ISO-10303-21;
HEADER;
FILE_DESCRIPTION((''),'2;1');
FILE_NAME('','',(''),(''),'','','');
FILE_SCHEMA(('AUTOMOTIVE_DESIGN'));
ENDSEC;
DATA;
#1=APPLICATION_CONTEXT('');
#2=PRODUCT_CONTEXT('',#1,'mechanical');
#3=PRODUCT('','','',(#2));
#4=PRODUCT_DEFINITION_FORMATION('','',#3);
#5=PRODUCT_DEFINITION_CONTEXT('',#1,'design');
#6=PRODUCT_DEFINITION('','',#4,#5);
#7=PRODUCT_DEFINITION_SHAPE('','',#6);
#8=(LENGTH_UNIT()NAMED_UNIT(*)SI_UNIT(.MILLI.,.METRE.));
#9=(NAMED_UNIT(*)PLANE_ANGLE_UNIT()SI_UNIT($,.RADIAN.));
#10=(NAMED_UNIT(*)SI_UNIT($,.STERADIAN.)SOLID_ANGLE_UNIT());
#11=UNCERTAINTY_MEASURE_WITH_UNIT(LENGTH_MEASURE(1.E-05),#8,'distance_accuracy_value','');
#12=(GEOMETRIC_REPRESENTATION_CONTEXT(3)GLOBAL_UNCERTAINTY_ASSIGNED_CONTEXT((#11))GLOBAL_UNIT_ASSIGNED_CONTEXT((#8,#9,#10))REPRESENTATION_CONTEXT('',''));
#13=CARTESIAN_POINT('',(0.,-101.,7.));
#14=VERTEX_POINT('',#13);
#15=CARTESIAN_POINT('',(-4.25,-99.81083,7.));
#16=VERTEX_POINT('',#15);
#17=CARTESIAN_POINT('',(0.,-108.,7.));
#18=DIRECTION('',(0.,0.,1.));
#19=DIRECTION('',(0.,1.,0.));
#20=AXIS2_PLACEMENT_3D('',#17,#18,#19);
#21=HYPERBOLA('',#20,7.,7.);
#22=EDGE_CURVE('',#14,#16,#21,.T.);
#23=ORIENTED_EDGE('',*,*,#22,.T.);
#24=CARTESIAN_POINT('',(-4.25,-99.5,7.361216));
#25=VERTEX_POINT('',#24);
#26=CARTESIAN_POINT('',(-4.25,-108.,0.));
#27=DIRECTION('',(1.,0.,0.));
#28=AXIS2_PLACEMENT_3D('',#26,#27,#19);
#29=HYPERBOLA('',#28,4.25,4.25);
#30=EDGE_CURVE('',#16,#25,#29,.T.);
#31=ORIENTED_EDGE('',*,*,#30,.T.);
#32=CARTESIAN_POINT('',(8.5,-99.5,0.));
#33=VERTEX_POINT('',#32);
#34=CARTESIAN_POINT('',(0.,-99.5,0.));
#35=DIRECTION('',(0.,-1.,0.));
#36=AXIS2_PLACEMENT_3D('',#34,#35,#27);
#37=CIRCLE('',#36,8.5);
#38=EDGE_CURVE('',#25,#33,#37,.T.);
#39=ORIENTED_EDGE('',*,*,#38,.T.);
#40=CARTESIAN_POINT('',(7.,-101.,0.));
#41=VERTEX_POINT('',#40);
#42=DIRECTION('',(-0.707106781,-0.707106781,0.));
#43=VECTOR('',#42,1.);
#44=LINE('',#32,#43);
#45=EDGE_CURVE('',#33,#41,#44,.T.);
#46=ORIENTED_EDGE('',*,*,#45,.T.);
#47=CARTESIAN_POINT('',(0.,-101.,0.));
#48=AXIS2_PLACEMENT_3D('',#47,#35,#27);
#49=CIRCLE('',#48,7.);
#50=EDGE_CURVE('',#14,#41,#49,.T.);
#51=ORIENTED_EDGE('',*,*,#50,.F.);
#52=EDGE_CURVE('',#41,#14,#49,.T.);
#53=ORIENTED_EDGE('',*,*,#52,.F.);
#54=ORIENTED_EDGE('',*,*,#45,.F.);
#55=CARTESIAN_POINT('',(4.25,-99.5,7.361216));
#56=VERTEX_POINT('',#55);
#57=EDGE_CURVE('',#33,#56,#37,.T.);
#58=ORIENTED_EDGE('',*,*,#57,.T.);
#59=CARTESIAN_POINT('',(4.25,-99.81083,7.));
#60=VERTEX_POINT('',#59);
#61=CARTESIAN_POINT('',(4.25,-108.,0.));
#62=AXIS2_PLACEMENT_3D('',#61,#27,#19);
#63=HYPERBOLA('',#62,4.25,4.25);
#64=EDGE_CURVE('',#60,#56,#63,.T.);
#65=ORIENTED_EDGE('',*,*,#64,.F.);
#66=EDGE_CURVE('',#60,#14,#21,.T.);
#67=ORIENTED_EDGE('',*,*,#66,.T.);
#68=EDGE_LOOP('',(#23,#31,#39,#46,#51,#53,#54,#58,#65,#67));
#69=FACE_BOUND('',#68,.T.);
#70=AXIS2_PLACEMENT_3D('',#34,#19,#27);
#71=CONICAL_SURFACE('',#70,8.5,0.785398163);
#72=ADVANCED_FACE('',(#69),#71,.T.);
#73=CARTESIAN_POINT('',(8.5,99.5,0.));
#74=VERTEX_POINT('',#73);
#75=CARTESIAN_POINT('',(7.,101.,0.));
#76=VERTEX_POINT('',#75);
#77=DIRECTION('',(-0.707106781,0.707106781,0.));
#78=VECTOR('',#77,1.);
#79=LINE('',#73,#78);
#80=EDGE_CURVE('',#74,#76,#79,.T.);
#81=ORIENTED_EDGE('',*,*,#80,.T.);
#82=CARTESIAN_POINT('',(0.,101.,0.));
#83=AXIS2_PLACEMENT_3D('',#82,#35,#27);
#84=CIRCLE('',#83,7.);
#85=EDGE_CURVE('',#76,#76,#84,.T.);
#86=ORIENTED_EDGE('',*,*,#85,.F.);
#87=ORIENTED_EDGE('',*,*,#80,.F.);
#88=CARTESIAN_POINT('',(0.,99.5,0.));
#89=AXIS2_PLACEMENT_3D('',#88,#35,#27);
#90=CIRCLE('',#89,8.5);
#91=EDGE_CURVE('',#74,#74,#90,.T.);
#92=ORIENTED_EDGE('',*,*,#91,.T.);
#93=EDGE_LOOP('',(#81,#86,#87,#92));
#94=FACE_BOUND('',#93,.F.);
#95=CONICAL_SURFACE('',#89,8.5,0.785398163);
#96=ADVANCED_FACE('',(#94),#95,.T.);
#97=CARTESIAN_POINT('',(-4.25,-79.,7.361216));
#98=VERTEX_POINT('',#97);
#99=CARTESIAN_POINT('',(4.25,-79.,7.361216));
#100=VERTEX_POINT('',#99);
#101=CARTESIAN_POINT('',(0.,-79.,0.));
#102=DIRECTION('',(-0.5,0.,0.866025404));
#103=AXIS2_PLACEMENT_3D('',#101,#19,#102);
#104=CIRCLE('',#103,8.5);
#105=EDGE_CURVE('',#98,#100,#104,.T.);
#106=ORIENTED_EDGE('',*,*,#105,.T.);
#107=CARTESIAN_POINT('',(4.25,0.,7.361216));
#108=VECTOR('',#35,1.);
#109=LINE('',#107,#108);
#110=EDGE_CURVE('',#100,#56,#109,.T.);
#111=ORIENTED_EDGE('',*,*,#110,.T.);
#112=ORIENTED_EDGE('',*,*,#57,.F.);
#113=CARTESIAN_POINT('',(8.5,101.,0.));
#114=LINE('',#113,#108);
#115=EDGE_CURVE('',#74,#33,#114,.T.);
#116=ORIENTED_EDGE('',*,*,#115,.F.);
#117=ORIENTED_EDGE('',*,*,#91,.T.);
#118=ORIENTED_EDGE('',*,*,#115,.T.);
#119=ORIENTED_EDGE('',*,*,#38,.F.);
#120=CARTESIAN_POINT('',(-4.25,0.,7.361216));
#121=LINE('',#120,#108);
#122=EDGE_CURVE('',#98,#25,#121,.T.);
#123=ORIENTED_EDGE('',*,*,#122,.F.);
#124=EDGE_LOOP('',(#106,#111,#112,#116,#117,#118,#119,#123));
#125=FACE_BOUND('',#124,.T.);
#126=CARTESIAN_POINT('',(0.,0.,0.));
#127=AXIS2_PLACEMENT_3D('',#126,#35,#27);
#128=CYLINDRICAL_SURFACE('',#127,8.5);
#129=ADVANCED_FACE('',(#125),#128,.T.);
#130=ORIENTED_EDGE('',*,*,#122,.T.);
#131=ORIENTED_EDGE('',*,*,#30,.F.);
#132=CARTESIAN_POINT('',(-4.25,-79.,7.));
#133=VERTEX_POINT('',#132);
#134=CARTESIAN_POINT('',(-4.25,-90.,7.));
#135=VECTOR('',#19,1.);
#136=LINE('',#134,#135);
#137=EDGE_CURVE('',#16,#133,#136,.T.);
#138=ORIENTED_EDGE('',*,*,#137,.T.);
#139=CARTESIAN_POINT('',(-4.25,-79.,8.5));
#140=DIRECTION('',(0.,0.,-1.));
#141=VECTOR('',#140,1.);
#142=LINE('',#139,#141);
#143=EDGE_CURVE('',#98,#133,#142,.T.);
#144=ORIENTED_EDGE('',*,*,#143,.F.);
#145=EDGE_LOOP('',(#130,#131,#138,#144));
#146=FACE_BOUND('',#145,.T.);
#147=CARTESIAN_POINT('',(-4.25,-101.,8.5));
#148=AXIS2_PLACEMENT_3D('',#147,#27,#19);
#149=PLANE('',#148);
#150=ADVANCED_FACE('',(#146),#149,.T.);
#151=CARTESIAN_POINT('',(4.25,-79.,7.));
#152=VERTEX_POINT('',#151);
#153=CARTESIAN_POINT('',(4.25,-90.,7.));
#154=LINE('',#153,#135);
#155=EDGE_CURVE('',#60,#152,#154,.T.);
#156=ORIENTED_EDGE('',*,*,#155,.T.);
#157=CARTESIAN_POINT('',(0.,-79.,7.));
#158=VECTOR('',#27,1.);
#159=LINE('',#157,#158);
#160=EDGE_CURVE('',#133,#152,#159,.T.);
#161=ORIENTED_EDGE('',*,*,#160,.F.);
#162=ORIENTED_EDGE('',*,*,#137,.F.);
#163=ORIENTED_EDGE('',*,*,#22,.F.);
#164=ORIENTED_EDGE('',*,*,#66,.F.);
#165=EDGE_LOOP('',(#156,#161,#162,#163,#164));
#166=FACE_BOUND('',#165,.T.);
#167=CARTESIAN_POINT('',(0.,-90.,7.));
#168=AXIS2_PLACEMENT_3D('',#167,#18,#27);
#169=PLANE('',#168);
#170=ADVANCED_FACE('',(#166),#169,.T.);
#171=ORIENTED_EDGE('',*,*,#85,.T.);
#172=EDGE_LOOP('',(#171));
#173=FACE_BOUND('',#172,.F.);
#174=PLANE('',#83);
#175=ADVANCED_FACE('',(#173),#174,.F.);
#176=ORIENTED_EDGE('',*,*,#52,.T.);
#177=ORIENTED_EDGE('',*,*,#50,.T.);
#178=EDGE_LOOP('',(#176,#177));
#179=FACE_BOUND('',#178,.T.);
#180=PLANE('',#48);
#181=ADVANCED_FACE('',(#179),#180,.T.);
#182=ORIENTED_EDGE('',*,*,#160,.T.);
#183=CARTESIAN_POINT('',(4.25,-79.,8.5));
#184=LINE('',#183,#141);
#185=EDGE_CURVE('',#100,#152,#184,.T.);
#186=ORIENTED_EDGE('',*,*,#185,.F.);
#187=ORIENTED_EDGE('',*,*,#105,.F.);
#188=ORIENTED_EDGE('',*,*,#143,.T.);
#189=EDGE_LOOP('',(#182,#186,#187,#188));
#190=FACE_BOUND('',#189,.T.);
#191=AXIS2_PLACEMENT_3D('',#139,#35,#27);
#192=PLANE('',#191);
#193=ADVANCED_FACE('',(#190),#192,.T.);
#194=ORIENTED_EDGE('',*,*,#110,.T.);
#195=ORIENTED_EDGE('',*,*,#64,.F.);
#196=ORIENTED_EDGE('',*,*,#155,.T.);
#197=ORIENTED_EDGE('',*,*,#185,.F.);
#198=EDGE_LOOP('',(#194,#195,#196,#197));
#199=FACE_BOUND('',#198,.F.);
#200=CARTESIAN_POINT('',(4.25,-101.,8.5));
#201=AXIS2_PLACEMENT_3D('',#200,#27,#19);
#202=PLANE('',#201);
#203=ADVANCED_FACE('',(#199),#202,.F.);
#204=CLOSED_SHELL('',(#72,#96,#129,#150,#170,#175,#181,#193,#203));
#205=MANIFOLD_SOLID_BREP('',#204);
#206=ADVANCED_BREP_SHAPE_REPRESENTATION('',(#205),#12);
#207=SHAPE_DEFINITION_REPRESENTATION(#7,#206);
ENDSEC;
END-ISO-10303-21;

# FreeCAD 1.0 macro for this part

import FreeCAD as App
import Part
import Sketcher
Q = App.Units.Quantity


def edges_at(feature, points):
    """Names of the edges that pass closest to the given points."""
    edges = feature.Shape.Edges
    near = lambda p: min(range(len(edges)), key=lambda i: edges[i].distToShape(Part.Vertex(*p))[0])
    return sorted({f"Edge{near(p) + 1}" for p in points})


def add_polygon(sketch, points):
    """Adds a closed chain of lines whose ends are joined by coincident constraints."""
    first, n = sketch.GeometryCount, len(points)
    for a, b in zip(points, points[1:] + points[:1]):
        sketch.addGeometry(Part.LineSegment(App.Vector(*a, 0), App.Vector(*b, 0)), False)
    for i in range(n):
        sketch.addConstraint(Sketcher.Constraint("Coincident", first + i, 2, first + (i + 1) % n, 1))

doc = App.newDocument("Part")
body = doc.addObject("PartDesign::Body", "Body")

# Sketch on XZ plane
sketch1 = body.newObject("Sketcher::SketchObject", "Sketch")
sketch1.AttachmentSupport = (doc.getObject("XZ_Plane"), [""])
sketch1.MapMode = "FlatFace"
sketch1.addGeometry(Part.Circle(App.Vector(0, 0, 0), App.Vector(0, 0, 1), 8), False)
sketch1.addConstraint(Sketcher.Constraint("Coincident", 0, 3, -1, 1))
sketch1.addConstraint(Sketcher.Constraint("Diameter", 0, Q("17 mm")))
pad1 = body.newObject("PartDesign::Pad", "Pad")
pad1.Profile = sketch1
pad1.Type = "TwoLengths"
pad1.Length = 101
pad1.Length2 = 101
doc.recompute()

chamfer = body.newObject("PartDesign::Chamfer", "Chamfer")
chamfer.Base = (pad1, edges_at(pad1, [(-8.5, -101, 0), (-8.5, 101, 0)]))
chamfer.Size = 1.5

# Sketch on XY plane
sketch2 = body.newObject("Sketcher::SketchObject", "Sketch001")
sketch2.AttachmentSupport = (doc.getObject("XY_Plane"), [""])
sketch2.MapMode = "FlatFace"
sketch2.AttachmentOffset = App.Placement(App.Vector(0, 0, 8.5), App.Rotation())
add_polygon(sketch2, [(-4, -79), (-4, -101), (4, -101), (4, -79)])  # lines 0-3
sketch2.addConstraint(Sketcher.Constraint("Vertical", 0))
sketch2.addConstraint(Sketcher.Constraint("Horizontal", 1))
sketch2.addConstraint(Sketcher.Constraint("Vertical", 2))
sketch2.addConstraint(Sketcher.Constraint("Horizontal", 3))
sketch2.addConstraint(Sketcher.Constraint("DistanceY", 0, 2, 0, 1, Q("22 mm")))
sketch2.addConstraint(Sketcher.Constraint("DistanceX", 1, 1, 1, 2, Q("8.5 mm")))
sketch2.addConstraint(Sketcher.Constraint("DistanceY", 0, 2, -1, 1, Q("101 mm")))
sketch2.addConstraint(Sketcher.Constraint("DistanceX", 0, 2, -1, 1, Q("4.25 mm")))
pocket1 = body.newObject("PartDesign::Pocket", "Pocket")
pocket1.Profile = sketch2
pocket1.Length = 1.5

doc.recompute()
